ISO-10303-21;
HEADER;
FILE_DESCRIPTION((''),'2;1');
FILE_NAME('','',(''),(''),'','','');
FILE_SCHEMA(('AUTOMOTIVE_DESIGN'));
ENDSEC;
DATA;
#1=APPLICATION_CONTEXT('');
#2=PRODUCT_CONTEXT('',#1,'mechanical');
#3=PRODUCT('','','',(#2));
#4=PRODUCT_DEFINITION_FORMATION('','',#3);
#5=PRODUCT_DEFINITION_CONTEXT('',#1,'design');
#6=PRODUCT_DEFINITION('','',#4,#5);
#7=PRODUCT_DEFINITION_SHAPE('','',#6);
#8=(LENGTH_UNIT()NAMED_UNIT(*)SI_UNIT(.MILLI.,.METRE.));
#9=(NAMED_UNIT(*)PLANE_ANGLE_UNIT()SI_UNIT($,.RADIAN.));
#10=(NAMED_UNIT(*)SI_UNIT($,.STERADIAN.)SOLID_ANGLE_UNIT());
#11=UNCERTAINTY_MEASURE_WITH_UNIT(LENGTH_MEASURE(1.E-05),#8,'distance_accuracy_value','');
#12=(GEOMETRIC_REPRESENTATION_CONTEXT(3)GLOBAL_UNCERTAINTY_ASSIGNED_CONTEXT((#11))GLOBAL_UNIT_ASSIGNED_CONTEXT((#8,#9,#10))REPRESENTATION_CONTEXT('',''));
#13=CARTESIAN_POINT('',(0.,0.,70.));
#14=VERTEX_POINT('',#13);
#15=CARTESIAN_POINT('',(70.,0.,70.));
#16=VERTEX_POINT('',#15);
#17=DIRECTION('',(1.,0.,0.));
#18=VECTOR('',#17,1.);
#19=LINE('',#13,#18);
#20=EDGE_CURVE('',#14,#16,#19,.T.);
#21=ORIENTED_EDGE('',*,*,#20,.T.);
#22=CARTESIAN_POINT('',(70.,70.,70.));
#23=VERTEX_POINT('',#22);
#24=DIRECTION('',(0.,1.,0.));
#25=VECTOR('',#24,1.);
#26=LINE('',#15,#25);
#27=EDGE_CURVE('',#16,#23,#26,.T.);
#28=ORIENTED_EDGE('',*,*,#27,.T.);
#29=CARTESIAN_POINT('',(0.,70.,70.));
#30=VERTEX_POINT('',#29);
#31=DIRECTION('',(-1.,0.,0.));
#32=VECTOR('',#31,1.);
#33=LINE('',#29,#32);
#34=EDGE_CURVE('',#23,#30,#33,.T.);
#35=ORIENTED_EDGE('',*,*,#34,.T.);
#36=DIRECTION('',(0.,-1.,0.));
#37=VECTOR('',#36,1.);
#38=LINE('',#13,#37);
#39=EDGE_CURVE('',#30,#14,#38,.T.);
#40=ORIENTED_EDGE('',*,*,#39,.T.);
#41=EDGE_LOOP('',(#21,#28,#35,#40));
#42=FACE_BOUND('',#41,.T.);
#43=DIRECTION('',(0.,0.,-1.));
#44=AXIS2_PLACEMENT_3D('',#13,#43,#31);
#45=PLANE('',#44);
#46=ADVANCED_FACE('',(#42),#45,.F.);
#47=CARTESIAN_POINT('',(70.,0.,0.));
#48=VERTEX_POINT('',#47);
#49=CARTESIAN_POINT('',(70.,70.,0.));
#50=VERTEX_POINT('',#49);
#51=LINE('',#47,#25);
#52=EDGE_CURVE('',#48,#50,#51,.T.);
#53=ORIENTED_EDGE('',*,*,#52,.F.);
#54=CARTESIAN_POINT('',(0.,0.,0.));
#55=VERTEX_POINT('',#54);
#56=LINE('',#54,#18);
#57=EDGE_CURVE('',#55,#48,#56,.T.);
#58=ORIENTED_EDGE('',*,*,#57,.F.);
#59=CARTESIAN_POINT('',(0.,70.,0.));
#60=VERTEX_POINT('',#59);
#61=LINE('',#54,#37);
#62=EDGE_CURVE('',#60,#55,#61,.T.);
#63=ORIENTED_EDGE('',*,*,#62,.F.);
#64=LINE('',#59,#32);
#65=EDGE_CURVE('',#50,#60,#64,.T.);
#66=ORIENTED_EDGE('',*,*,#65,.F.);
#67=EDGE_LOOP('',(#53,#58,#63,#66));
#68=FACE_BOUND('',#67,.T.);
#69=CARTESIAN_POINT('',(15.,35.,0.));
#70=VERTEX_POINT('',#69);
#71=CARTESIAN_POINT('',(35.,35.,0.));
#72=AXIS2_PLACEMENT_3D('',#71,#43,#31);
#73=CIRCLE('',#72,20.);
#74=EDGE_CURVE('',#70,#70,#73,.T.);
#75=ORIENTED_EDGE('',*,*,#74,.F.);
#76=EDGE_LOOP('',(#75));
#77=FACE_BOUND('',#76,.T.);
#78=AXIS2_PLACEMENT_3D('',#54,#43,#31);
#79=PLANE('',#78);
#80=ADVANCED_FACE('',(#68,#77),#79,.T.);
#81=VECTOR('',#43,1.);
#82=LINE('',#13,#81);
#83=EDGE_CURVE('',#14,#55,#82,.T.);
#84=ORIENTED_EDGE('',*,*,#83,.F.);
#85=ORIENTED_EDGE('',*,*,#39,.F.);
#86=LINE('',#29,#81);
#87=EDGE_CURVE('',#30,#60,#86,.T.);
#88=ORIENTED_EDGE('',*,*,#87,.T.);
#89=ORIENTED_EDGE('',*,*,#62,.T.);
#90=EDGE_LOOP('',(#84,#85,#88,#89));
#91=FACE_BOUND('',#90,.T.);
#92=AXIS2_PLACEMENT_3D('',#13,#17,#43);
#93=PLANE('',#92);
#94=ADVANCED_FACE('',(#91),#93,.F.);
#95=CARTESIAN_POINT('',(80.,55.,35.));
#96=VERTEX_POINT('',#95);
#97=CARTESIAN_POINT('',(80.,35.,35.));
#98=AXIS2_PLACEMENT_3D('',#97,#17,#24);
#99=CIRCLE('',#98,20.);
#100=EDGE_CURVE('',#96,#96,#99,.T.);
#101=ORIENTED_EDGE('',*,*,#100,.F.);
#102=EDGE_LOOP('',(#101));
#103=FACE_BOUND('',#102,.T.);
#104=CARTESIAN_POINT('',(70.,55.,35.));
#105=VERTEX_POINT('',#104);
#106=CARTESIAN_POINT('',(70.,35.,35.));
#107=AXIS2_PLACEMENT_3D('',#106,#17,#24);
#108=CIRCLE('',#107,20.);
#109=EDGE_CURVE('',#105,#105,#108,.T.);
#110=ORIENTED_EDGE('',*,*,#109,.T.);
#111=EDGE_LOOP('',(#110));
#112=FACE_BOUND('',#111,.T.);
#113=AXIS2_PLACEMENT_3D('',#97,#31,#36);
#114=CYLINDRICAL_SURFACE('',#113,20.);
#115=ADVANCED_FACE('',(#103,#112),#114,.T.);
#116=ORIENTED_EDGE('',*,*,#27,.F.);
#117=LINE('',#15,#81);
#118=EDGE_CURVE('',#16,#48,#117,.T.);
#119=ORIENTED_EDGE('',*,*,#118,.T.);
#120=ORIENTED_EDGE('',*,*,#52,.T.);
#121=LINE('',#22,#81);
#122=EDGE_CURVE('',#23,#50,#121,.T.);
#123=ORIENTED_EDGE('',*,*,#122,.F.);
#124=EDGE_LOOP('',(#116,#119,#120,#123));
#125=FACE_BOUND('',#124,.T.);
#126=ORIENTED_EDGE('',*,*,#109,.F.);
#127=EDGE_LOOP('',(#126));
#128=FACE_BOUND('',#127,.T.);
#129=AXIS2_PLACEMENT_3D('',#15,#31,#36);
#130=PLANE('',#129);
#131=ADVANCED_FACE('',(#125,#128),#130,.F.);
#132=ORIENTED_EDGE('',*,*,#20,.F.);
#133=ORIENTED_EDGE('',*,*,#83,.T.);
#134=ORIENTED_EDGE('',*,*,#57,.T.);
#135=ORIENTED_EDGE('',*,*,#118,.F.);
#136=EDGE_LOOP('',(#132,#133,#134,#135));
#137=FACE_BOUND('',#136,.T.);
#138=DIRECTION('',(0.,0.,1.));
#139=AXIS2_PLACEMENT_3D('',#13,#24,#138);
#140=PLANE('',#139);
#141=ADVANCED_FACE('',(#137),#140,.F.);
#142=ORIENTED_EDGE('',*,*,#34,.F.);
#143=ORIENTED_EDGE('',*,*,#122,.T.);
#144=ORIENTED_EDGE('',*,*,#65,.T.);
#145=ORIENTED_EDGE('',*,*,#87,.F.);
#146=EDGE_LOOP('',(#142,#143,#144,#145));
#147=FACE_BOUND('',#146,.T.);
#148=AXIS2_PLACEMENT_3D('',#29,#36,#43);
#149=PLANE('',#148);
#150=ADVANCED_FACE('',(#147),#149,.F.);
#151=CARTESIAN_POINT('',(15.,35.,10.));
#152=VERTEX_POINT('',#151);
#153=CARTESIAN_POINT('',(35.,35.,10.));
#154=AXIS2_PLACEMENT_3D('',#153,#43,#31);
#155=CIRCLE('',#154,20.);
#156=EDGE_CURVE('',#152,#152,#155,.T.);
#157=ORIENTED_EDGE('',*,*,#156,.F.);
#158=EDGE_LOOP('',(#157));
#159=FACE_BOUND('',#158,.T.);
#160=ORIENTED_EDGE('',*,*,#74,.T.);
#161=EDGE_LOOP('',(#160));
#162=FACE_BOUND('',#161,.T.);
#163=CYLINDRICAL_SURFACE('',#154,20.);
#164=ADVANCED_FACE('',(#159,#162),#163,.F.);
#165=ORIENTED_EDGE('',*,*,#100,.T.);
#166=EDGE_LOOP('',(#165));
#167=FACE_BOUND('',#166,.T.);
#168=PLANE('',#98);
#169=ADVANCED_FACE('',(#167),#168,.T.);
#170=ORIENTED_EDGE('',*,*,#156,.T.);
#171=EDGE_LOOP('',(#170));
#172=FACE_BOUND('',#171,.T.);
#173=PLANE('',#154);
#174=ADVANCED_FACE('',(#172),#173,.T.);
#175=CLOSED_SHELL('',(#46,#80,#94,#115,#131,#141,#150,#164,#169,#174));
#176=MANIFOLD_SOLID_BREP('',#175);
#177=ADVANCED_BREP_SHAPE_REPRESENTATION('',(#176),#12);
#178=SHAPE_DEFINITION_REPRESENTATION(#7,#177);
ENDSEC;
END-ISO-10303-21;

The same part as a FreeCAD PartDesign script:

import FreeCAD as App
import Part
import Sketcher
from FreeCAD import Vector
Q = App.Units.Quantity

doc = App.newDocument("Part")
params = doc.addObject("Spreadsheet::Sheet", "Params")
for row, (alias, value) in enumerate([
    ("sketch1_width", "70 mm"),
    ("pad1_length", "70 mm"),
    ("sketch2_diameter", "40 mm"),
    ("pad2_length", "10 mm"),
    ("sketch3_diameter", "40 mm"),
    ("pocket1_length", "10 mm"),
], start=1):
    params.set(f"A{row}", alias)
    params.set(f"B{row}", "=" + value)
    params.setAlias(f"B{row}", alias)

body = doc.addObject("PartDesign::Body", "Body")

# Sketch on XY plane
sketch1 = body.newObject("Sketcher::SketchObject", "Sketch")
sketch1.AttachmentSupport = (doc.getObject("XY_Plane"), [""])
sketch1.MapMode = "FlatFace"
sketch1.addGeometry(Part.LineSegment(Vector(0, 70, 0), Vector(0, 0, 0)), False)
sketch1.addGeometry(Part.LineSegment(Vector(0, 0, 0), Vector(70, 0, 0)), False)
sketch1.addGeometry(Part.LineSegment(Vector(70, 0, 0), Vector(70, 70, 0)), False)
sketch1.addGeometry(Part.LineSegment(Vector(70, 70, 0), Vector(0, 70, 0)), False)
sketch1.addConstraint(Sketcher.Constraint("Coincident", 0, 2, 1, 1))
sketch1.addConstraint(Sketcher.Constraint("Coincident", 1, 2, 2, 1))
sketch1.addConstraint(Sketcher.Constraint("Coincident", 2, 2, 3, 1))
sketch1.addConstraint(Sketcher.Constraint("Coincident", 3, 2, 0, 1))
sketch1.addConstraint(Sketcher.Constraint("Vertical", 0))
sketch1.addConstraint(Sketcher.Constraint("Horizontal", 1))
sketch1.addConstraint(Sketcher.Constraint("Vertical", 2))
sketch1.addConstraint(Sketcher.Constraint("Horizontal", 3))
sketch1.addConstraint(Sketcher.Constraint("Coincident", 0, 2, -1, 1))
sketch1.addConstraint(Sketcher.Constraint("Equal", 3, 0))
sketch1.addConstraint(Sketcher.Constraint("DistanceX", 1, 1, 1, 2, Q("70 mm")))
sketch1.setExpression("Constraints[10]", "Params.sketch1_width")
pad1 = body.newObject("PartDesign::Pad", "Pad")
pad1.Profile = sketch1
pad1.setExpression("Length", "Params.pad1_length")

# Sketch on YZ plane
sketch2 = body.newObject("Sketcher::SketchObject", "Sketch001")
sketch2.AttachmentSupport = (doc.getObject("YZ_Plane"), [""])
sketch2.MapMode = "FlatFace"
sketch2.AttachmentOffset = App.Placement(Vector(0, 0, 70), App.Rotation())
sketch2.addGeometry(Part.Circle(Vector(35, 35, 0), Vector(0, 0, 1), 20), False)
sketch2.addConstraint(Sketcher.Constraint("Diameter", 0, Q("40 mm")))
sketch2.addConstraint(Sketcher.Constraint("DistanceX", -1, 1, 0, 3, Q("35 mm")))
sketch2.addConstraint(Sketcher.Constraint("DistanceY", -1, 1, 0, 3, Q("35 mm")))
sketch2.setExpression("Constraints[0]", "Params.sketch2_diameter")
pad2 = body.newObject("PartDesign::Pad", "Pad001")
pad2.Profile = sketch2
pad2.setExpression("Length", "Params.pad2_length")

# Sketch on XY plane
sketch3 = body.newObject("Sketcher::SketchObject", "Sketch002")
sketch3.AttachmentSupport = (doc.getObject("XY_Plane"), [""])
sketch3.MapMode = "FlatFace"
sketch3.addGeometry(Part.Circle(Vector(35, 35, 0), Vector(0, 0, 1), 20), False)
sketch3.addConstraint(Sketcher.Constraint("Diameter", 0, Q("40 mm")))
sketch3.addConstraint(Sketcher.Constraint("DistanceX", -1, 1, 0, 3, Q("35 mm")))
sketch3.addConstraint(Sketcher.Constraint("DistanceY", -1, 1, 0, 3, Q("35 mm")))
sketch3.setExpression("Constraints[0]", "Params.sketch3_diameter")
pocket1 = body.newObject("PartDesign::Pocket", "Pocket")
pocket1.Profile = sketch3
pocket1.setExpression("Length", "Params.pocket1_length")
pocket1.Reversed = True

doc.recompute()
